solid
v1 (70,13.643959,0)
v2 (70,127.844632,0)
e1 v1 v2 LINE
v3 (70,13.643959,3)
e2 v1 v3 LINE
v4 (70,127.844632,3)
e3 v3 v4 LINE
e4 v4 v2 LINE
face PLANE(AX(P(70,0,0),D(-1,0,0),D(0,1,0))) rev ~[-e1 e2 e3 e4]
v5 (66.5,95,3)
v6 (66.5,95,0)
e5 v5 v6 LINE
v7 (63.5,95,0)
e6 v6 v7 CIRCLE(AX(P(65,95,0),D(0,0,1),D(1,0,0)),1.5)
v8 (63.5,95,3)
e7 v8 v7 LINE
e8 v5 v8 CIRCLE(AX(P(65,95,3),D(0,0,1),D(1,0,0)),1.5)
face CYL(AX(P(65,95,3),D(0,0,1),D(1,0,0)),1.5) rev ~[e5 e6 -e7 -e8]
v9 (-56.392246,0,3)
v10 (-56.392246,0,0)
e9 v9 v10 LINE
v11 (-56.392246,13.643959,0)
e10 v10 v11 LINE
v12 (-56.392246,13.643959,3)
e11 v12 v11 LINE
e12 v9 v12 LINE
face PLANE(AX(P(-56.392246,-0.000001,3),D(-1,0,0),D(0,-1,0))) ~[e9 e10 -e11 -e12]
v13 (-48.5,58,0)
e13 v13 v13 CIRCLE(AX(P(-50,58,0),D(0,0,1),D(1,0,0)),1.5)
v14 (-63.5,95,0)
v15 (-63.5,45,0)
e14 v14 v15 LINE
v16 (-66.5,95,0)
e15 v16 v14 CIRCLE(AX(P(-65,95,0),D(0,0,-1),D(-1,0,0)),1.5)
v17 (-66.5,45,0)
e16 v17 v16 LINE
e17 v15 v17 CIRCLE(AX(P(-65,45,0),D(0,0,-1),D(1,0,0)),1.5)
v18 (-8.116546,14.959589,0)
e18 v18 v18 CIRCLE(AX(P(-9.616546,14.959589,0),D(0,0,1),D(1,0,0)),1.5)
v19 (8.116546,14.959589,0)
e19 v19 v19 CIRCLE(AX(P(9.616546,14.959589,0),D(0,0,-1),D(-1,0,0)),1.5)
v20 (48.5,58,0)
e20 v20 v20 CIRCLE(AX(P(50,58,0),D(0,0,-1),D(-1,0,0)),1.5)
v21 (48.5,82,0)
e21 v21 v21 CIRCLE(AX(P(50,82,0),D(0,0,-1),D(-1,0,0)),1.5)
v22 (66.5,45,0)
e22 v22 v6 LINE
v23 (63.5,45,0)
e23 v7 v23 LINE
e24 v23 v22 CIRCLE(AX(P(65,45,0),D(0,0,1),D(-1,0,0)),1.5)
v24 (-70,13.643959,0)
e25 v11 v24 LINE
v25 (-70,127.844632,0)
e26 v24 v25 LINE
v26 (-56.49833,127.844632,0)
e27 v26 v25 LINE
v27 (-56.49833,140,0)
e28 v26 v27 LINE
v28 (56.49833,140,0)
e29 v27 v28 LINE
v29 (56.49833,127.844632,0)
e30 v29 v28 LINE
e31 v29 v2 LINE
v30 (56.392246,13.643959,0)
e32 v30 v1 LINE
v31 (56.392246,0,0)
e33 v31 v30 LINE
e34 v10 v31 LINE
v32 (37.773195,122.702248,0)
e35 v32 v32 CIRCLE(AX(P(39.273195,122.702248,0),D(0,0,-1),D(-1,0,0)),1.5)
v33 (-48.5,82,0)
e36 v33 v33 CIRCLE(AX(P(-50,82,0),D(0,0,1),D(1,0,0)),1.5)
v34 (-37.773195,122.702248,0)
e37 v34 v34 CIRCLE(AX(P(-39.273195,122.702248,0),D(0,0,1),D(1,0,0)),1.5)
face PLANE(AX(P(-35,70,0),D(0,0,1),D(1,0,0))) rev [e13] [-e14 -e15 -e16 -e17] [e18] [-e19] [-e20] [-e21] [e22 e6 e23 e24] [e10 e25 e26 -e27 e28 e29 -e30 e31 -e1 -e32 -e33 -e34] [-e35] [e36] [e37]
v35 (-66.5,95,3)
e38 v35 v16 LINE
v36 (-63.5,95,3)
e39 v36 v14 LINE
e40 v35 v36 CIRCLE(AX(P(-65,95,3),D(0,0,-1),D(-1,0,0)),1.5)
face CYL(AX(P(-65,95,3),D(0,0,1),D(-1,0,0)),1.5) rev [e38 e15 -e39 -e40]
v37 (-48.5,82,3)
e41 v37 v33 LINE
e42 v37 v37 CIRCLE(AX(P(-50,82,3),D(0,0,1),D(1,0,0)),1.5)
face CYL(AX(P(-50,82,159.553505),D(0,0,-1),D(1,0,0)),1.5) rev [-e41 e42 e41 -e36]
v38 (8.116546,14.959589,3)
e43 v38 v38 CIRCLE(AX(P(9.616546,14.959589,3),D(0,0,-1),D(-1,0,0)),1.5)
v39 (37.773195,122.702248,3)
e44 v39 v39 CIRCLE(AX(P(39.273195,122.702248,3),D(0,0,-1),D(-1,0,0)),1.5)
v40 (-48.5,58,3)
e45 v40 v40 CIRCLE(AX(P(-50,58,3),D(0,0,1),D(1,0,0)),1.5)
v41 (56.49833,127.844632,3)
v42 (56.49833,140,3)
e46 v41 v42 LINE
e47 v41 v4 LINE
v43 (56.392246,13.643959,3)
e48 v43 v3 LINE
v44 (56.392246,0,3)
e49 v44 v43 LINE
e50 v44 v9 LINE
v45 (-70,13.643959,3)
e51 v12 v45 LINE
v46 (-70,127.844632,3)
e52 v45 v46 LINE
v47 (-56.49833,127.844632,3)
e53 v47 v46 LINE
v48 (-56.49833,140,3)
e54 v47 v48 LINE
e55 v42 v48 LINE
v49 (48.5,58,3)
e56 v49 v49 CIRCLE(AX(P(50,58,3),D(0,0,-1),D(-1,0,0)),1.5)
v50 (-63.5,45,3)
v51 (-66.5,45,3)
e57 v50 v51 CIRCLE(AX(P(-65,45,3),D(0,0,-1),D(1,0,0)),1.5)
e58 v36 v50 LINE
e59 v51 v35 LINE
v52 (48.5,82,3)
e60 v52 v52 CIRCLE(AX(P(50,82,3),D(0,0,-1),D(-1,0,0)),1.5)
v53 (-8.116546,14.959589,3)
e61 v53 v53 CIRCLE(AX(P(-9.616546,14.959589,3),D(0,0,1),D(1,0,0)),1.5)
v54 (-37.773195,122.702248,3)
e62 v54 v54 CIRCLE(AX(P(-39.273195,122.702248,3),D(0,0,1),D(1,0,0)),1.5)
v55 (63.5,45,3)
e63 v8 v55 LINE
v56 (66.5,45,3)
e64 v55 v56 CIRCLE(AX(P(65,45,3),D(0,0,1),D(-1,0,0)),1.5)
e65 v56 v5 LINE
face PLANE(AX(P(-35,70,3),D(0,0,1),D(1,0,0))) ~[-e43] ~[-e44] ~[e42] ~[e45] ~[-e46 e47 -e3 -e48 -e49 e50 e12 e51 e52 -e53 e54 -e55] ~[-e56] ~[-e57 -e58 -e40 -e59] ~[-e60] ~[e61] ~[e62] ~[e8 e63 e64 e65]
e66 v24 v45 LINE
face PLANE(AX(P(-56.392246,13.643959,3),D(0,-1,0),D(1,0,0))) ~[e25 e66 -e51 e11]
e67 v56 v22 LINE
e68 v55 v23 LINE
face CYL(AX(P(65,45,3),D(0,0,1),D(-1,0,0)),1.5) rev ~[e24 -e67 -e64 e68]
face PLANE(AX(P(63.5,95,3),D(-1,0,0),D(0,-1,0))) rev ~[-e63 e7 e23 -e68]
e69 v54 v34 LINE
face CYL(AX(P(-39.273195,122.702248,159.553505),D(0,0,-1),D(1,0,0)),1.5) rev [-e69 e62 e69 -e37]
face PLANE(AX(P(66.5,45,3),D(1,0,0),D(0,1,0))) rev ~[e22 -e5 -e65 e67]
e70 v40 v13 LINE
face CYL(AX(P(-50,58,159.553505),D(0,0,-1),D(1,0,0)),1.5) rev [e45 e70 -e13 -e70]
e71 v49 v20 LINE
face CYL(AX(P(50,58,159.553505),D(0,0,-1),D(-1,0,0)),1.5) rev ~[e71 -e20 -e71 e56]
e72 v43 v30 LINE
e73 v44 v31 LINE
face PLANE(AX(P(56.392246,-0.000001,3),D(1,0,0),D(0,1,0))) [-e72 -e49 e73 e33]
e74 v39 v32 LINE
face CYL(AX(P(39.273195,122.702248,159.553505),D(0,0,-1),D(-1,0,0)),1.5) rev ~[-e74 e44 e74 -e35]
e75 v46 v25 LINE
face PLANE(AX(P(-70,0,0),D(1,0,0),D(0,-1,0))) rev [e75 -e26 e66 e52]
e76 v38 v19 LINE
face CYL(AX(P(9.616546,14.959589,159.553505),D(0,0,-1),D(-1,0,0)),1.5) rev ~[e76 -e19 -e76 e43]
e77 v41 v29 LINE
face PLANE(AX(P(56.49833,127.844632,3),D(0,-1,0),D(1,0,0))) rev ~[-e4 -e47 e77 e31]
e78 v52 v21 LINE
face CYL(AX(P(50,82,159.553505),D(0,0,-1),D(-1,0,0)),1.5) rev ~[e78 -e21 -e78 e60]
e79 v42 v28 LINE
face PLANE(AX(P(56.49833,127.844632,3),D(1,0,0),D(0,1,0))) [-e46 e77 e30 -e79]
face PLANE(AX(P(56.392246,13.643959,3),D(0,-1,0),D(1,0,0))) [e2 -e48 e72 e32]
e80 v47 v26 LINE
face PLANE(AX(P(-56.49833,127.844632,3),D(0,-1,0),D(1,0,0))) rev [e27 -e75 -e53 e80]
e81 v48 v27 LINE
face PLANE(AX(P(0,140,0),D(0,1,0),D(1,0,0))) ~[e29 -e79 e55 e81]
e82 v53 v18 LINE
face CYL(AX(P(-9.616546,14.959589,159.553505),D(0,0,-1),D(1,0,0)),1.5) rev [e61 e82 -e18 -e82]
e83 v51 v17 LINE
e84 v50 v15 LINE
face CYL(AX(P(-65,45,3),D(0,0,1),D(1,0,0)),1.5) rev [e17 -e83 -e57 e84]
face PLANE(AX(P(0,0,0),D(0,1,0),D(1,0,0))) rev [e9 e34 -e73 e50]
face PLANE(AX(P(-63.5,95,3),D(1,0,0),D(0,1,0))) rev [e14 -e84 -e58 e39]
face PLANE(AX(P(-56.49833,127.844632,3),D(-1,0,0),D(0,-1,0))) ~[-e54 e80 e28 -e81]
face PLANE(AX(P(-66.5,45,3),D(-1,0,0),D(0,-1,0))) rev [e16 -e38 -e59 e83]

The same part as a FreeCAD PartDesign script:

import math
import FreeCAD as App
import Part
import Sketcher


def add_polygon(sketch, points):
    """Adds a closed chain of lines whose ends are joined by coincident constraints."""
    first, n = sketch.GeometryCount, len(points)
    for a, b in zip(points, points[1:] + points[:1]):
        sketch.addGeometry(Part.LineSegment(App.Vector(*a, 0), App.Vector(*b, 0)), False)
    for i in range(n):
        sketch.addConstraint(Sketcher.Constraint("Coincident", first + i, 2, first + (i + 1) % n, 1))

doc = App.newDocument("Part")
body = doc.addObject("PartDesign::Body", "Body")

sketch1 = body.newObject("Sketcher::SketchObject", "Sketch")
sketch1.AttachmentSupport = (doc.getObject("XY_Plane"), [""])
sketch1.MapMode = "FlatFace"
add_polygon(sketch1, [(0, 140), (0, 0), (70, 0), (70, 140)])
sketch1.addConstraint(Sketcher.Constraint("Vertical", 0))
sketch1.addConstraint(Sketcher.Constraint("Horizontal", 1))
sketch1.addConstraint(Sketcher.Constraint("Vertical", 2))
sketch1.addConstraint(Sketcher.Constraint("Horizontal", 3))
sketch1.addConstraint(Sketcher.Constraint("Coincident", 0, 2, -1, 1))
sketch1.addConstraint(Sketcher.Constraint("DistanceX", 1, 1, 1, 2, 70.0))
sketch1.addConstraint(Sketcher.Constraint("DistanceY", 0, 2, 0, 1, 140.0))
pad1 = body.newObject("PartDesign::Pad", "Pad")
pad1.Profile = sketch1
pad1.Length = 3

sketch2 = body.newObject("Sketcher::SketchObject", "Sketch001")
sketch2.AttachmentSupport = (doc.getObject("XY_Plane"), [""])
sketch2.MapMode = "FlatFace"
sketch2.AttachmentOffset = App.Placement(App.Vector(0, 0, 3), App.Rotation())
sketch2.addGeometry(Part.Circle(App.Vector(50, 58, 0), App.Vector(0, 0, 1), 1.5), False)
sketch2.addGeometry(Part.Circle(App.Vector(50, 82, 0), App.Vector(0, 0, 1), 1.5), False)
sketch2.addConstraint(Sketcher.Constraint("Equal", 0, 1))
sketch2.addConstraint(Sketcher.Constraint("Vertical", 0, 3, 1, 3))
sketch2.addConstraint(Sketcher.Constraint("Diameter", 0, 3.0))
sketch2.addConstraint(Sketcher.Constraint("DistanceX", -1, 1, 0, 3, 50.0))
sketch2.addConstraint(Sketcher.Constraint("DistanceY", -1, 1, 0, 3, 58.0))
sketch2.addConstraint(Sketcher.Constraint("DistanceY", -1, 1, 1, 3, 82.0))
doc.recompute()
hole = body.newObject("PartDesign::Hole", "Hole")
hole.Profile = sketch2
hole.ThreadType = "None"
hole.Diameter = 3
hole.DepthType = "ThroughAll"

sketch3 = body.newObject("Sketcher::SketchObject", "Sketch002")
sketch3.AttachmentSupport = (doc.getObject("XY_Plane"), [""])
sketch3.MapMode = "FlatFace"
sketch3.AttachmentOffset = App.Placement(App.Vector(0, 0, 3), App.Rotation())
sketch3.addGeometry(Part.Circle(App.Vector(39.3, 122.7, 0), App.Vector(0, 0, 1), 1.5), False)
sketch3.addConstraint(Sketcher.Constraint("Diameter", 0, 3.0))
sketch3.addConstraint(Sketcher.Constraint("DistanceX", -1, 1, 0, 3, 39.273195))
sketch3.addConstraint(Sketcher.Constraint("DistanceY", -1, 1, 0, 3, 122.702248))
doc.recompute()
hole2 = body.newObject("PartDesign::Hole", "Hole001")
hole2.Profile = sketch3
hole2.ThreadType = "None"
hole2.Diameter = 3
hole2.DepthType = "ThroughAll"

sketch4 = body.newObject("Sketcher::SketchObject", "Sketch003")
sketch4.AttachmentSupport = (doc.getObject("XY_Plane"), [""])
sketch4.MapMode = "FlatFace"
sketch4.AttachmentOffset = App.Placement(App.Vector(0, 0, 3), App.Rotation())
sketch4.addGeometry(Part.Circle(App.Vector(9.6, 15, 0), App.Vector(0, 0, 1), 1.5), False)
sketch4.addConstraint(Sketcher.Constraint("Diameter", 0, 3.0))
sketch4.addConstraint(Sketcher.Constraint("DistanceY", -1, 1, 0, 3, 14.959589))
sketch4.addConstraint(Sketcher.Constraint("DistanceX", -1, 1, 0, 3, 9.616546))
doc.recompute()
hole3 = body.newObject("PartDesign::Hole", "Hole002")
hole3.Profile = sketch4
hole3.ThreadType = "None"
hole3.Diameter = 3
hole3.DepthType = "ThroughAll"

sketch5 = body.newObject("Sketcher::SketchObject", "Sketch004")
sketch5.AttachmentSupport = (doc.getObject("XY_Plane"), [""])
sketch5.MapMode = "FlatFace"
sketch5.AttachmentOffset = App.Placement(App.Vector(0, 0, 3), App.Rotation())
add_polygon(sketch5, [(56, 140), (56, 128), (70, 128), (70, 140)])
sketch5.addConstraint(Sketcher.Constraint("Vertical", 0))
sketch5.addConstraint(Sketcher.Constraint("Horizontal", 1))
sketch5.addConstraint(Sketcher.Constraint("Vertical", 2))
sketch5.addConstraint(Sketcher.Constraint("Horizontal", 3))
sketch5.addConstraint(Sketcher.Constraint("DistanceX", -1, 1, 1, 2, 70.0))
sketch5.addConstraint(Sketcher.Constraint("DistanceY", -1, 1, 2, 2, 140.0))
sketch5.addConstraint(Sketcher.Constraint("DistanceX", 1, 1, 1, 2, 13.50167))
sketch5.addConstraint(Sketcher.Constraint("DistanceY", 0, 2, 0, 1, 12.155368))
pocket1 = body.newObject("PartDesign::Pocket", "Pocket")
pocket1.Profile = sketch5
pocket1.Length = 3

sketch6 = body.newObject("Sketcher::SketchObject", "Sketch005")
sketch6.AttachmentSupport = (doc.getObject("XY_Plane"), [""])
sketch6.MapMode = "FlatFace"
sketch6.AttachmentOffset = App.Placement(App.Vector(0, 0, 3), App.Rotation())
add_polygon(sketch6, [(56, 14), (56, 0), (70, 0), (70, 14)])
sketch6.addConstraint(Sketcher.Constraint("Vertical", 0))
sketch6.addConstraint(Sketcher.Constraint("Horizontal", 1))
sketch6.addConstraint(Sketcher.Constraint("Vertical", 2))
sketch6.addConstraint(Sketcher.Constraint("Horizontal", 3))
sketch6.addConstraint(Sketcher.Constraint("PointOnObject", 0, 2, -1))
sketch6.addConstraint(Sketcher.Constraint("DistanceX", -1, 1, 1, 2, 70.0))
sketch6.addConstraint(Sketcher.Constraint("DistanceY", 0, 2, 0, 1, 13.643959))
sketch6.addConstraint(Sketcher.Constraint("DistanceX", 1, 1, 1, 2, 13.607755))
pocket2 = body.newObject("PartDesign::Pocket", "Pocket001")
pocket2.Profile = sketch6
pocket2.Length = 4.788373

sketch7 = body.newObject("Sketcher::SketchObject", "Sketch006")
sketch7.AttachmentSupport = (doc.getObject("XY_Plane"), [""])
sketch7.MapMode = "FlatFace"
sketch7.AttachmentOffset = App.Placement(App.Vector(0, 0, 3), App.Rotation())
sketch7.addGeometry(Part.ArcOfCircle(Part.Circle(App.Vector(65, 45, 0), App.Vector(0, 0, 1), 1.5), math.radians(180), math.radians(360)), False)
sketch7.addGeometry(Part.LineSegment(App.Vector(66.5, 45, 0), App.Vector(66.5, 95, 0)), False)
sketch7.addGeometry(Part.ArcOfCircle(Part.Circle(App.Vector(65, 95, 0), App.Vector(0, 0, 1), 1.5), math.radians(0), math.radians(180)), False)
sketch7.addGeometry(Part.LineSegment(App.Vector(63.5, 95, 0), App.Vector(63.5, 45, 0)), False)
sketch7.addConstraint(Sketcher.Constraint("Tangent", 0, 2, 1, 1))
sketch7.addConstraint(Sketcher.Constraint("Tangent", 1, 2, 2, 1))
sketch7.addConstraint(Sketcher.Constraint("Tangent", 2, 2, 3, 1))
sketch7.addConstraint(Sketcher.Constraint("Tangent", 3, 2, 0, 1))
sketch7.addConstraint(Sketcher.Constraint("Vertical", 1))
sketch7.addConstraint(Sketcher.Constraint("Vertical", 3))
sketch7.addConstraint(Sketcher.Constraint("Radius", 0, 1.5))
sketch7.addConstraint(Sketcher.Constraint("DistanceY", 1, 1, 1, 2, 50.0))
sketch7.addConstraint(Sketcher.Constraint("DistanceX", -1, 1, 0, 3, 65.0))
sketch7.addConstraint(Sketcher.Constraint("DistanceY", -1, 1, 0, 3, 45.0))
pocket3 = body.newObject("PartDesign::Pocket", "Pocket002")
pocket3.Profile = sketch7
pocket3.Length = 36.920227
body2 = doc.addObject("PartDesign::Body", "Body001")
doc.recompute()

body2.BaseFeature = body
doc.recompute()

mirroring = doc.addObject("Part::Mirroring", "Mirroring")
mirroring.Source = body
mirroring.Base = App.Vector(0, 0, 0)
mirroring.Normal = App.Vector(1, 0, 0)
body3 = doc.addObject("PartDesign::Body", "Body002")
body3.BaseFeature = mirroring
boolean = body2.newObject("PartDesign::Boolean", "Boolean")
boolean.Type = "Fuse"
boolean.addObjects([body3])
doc.recompute()
mirroring.Visibility = False

doc.recompute()
